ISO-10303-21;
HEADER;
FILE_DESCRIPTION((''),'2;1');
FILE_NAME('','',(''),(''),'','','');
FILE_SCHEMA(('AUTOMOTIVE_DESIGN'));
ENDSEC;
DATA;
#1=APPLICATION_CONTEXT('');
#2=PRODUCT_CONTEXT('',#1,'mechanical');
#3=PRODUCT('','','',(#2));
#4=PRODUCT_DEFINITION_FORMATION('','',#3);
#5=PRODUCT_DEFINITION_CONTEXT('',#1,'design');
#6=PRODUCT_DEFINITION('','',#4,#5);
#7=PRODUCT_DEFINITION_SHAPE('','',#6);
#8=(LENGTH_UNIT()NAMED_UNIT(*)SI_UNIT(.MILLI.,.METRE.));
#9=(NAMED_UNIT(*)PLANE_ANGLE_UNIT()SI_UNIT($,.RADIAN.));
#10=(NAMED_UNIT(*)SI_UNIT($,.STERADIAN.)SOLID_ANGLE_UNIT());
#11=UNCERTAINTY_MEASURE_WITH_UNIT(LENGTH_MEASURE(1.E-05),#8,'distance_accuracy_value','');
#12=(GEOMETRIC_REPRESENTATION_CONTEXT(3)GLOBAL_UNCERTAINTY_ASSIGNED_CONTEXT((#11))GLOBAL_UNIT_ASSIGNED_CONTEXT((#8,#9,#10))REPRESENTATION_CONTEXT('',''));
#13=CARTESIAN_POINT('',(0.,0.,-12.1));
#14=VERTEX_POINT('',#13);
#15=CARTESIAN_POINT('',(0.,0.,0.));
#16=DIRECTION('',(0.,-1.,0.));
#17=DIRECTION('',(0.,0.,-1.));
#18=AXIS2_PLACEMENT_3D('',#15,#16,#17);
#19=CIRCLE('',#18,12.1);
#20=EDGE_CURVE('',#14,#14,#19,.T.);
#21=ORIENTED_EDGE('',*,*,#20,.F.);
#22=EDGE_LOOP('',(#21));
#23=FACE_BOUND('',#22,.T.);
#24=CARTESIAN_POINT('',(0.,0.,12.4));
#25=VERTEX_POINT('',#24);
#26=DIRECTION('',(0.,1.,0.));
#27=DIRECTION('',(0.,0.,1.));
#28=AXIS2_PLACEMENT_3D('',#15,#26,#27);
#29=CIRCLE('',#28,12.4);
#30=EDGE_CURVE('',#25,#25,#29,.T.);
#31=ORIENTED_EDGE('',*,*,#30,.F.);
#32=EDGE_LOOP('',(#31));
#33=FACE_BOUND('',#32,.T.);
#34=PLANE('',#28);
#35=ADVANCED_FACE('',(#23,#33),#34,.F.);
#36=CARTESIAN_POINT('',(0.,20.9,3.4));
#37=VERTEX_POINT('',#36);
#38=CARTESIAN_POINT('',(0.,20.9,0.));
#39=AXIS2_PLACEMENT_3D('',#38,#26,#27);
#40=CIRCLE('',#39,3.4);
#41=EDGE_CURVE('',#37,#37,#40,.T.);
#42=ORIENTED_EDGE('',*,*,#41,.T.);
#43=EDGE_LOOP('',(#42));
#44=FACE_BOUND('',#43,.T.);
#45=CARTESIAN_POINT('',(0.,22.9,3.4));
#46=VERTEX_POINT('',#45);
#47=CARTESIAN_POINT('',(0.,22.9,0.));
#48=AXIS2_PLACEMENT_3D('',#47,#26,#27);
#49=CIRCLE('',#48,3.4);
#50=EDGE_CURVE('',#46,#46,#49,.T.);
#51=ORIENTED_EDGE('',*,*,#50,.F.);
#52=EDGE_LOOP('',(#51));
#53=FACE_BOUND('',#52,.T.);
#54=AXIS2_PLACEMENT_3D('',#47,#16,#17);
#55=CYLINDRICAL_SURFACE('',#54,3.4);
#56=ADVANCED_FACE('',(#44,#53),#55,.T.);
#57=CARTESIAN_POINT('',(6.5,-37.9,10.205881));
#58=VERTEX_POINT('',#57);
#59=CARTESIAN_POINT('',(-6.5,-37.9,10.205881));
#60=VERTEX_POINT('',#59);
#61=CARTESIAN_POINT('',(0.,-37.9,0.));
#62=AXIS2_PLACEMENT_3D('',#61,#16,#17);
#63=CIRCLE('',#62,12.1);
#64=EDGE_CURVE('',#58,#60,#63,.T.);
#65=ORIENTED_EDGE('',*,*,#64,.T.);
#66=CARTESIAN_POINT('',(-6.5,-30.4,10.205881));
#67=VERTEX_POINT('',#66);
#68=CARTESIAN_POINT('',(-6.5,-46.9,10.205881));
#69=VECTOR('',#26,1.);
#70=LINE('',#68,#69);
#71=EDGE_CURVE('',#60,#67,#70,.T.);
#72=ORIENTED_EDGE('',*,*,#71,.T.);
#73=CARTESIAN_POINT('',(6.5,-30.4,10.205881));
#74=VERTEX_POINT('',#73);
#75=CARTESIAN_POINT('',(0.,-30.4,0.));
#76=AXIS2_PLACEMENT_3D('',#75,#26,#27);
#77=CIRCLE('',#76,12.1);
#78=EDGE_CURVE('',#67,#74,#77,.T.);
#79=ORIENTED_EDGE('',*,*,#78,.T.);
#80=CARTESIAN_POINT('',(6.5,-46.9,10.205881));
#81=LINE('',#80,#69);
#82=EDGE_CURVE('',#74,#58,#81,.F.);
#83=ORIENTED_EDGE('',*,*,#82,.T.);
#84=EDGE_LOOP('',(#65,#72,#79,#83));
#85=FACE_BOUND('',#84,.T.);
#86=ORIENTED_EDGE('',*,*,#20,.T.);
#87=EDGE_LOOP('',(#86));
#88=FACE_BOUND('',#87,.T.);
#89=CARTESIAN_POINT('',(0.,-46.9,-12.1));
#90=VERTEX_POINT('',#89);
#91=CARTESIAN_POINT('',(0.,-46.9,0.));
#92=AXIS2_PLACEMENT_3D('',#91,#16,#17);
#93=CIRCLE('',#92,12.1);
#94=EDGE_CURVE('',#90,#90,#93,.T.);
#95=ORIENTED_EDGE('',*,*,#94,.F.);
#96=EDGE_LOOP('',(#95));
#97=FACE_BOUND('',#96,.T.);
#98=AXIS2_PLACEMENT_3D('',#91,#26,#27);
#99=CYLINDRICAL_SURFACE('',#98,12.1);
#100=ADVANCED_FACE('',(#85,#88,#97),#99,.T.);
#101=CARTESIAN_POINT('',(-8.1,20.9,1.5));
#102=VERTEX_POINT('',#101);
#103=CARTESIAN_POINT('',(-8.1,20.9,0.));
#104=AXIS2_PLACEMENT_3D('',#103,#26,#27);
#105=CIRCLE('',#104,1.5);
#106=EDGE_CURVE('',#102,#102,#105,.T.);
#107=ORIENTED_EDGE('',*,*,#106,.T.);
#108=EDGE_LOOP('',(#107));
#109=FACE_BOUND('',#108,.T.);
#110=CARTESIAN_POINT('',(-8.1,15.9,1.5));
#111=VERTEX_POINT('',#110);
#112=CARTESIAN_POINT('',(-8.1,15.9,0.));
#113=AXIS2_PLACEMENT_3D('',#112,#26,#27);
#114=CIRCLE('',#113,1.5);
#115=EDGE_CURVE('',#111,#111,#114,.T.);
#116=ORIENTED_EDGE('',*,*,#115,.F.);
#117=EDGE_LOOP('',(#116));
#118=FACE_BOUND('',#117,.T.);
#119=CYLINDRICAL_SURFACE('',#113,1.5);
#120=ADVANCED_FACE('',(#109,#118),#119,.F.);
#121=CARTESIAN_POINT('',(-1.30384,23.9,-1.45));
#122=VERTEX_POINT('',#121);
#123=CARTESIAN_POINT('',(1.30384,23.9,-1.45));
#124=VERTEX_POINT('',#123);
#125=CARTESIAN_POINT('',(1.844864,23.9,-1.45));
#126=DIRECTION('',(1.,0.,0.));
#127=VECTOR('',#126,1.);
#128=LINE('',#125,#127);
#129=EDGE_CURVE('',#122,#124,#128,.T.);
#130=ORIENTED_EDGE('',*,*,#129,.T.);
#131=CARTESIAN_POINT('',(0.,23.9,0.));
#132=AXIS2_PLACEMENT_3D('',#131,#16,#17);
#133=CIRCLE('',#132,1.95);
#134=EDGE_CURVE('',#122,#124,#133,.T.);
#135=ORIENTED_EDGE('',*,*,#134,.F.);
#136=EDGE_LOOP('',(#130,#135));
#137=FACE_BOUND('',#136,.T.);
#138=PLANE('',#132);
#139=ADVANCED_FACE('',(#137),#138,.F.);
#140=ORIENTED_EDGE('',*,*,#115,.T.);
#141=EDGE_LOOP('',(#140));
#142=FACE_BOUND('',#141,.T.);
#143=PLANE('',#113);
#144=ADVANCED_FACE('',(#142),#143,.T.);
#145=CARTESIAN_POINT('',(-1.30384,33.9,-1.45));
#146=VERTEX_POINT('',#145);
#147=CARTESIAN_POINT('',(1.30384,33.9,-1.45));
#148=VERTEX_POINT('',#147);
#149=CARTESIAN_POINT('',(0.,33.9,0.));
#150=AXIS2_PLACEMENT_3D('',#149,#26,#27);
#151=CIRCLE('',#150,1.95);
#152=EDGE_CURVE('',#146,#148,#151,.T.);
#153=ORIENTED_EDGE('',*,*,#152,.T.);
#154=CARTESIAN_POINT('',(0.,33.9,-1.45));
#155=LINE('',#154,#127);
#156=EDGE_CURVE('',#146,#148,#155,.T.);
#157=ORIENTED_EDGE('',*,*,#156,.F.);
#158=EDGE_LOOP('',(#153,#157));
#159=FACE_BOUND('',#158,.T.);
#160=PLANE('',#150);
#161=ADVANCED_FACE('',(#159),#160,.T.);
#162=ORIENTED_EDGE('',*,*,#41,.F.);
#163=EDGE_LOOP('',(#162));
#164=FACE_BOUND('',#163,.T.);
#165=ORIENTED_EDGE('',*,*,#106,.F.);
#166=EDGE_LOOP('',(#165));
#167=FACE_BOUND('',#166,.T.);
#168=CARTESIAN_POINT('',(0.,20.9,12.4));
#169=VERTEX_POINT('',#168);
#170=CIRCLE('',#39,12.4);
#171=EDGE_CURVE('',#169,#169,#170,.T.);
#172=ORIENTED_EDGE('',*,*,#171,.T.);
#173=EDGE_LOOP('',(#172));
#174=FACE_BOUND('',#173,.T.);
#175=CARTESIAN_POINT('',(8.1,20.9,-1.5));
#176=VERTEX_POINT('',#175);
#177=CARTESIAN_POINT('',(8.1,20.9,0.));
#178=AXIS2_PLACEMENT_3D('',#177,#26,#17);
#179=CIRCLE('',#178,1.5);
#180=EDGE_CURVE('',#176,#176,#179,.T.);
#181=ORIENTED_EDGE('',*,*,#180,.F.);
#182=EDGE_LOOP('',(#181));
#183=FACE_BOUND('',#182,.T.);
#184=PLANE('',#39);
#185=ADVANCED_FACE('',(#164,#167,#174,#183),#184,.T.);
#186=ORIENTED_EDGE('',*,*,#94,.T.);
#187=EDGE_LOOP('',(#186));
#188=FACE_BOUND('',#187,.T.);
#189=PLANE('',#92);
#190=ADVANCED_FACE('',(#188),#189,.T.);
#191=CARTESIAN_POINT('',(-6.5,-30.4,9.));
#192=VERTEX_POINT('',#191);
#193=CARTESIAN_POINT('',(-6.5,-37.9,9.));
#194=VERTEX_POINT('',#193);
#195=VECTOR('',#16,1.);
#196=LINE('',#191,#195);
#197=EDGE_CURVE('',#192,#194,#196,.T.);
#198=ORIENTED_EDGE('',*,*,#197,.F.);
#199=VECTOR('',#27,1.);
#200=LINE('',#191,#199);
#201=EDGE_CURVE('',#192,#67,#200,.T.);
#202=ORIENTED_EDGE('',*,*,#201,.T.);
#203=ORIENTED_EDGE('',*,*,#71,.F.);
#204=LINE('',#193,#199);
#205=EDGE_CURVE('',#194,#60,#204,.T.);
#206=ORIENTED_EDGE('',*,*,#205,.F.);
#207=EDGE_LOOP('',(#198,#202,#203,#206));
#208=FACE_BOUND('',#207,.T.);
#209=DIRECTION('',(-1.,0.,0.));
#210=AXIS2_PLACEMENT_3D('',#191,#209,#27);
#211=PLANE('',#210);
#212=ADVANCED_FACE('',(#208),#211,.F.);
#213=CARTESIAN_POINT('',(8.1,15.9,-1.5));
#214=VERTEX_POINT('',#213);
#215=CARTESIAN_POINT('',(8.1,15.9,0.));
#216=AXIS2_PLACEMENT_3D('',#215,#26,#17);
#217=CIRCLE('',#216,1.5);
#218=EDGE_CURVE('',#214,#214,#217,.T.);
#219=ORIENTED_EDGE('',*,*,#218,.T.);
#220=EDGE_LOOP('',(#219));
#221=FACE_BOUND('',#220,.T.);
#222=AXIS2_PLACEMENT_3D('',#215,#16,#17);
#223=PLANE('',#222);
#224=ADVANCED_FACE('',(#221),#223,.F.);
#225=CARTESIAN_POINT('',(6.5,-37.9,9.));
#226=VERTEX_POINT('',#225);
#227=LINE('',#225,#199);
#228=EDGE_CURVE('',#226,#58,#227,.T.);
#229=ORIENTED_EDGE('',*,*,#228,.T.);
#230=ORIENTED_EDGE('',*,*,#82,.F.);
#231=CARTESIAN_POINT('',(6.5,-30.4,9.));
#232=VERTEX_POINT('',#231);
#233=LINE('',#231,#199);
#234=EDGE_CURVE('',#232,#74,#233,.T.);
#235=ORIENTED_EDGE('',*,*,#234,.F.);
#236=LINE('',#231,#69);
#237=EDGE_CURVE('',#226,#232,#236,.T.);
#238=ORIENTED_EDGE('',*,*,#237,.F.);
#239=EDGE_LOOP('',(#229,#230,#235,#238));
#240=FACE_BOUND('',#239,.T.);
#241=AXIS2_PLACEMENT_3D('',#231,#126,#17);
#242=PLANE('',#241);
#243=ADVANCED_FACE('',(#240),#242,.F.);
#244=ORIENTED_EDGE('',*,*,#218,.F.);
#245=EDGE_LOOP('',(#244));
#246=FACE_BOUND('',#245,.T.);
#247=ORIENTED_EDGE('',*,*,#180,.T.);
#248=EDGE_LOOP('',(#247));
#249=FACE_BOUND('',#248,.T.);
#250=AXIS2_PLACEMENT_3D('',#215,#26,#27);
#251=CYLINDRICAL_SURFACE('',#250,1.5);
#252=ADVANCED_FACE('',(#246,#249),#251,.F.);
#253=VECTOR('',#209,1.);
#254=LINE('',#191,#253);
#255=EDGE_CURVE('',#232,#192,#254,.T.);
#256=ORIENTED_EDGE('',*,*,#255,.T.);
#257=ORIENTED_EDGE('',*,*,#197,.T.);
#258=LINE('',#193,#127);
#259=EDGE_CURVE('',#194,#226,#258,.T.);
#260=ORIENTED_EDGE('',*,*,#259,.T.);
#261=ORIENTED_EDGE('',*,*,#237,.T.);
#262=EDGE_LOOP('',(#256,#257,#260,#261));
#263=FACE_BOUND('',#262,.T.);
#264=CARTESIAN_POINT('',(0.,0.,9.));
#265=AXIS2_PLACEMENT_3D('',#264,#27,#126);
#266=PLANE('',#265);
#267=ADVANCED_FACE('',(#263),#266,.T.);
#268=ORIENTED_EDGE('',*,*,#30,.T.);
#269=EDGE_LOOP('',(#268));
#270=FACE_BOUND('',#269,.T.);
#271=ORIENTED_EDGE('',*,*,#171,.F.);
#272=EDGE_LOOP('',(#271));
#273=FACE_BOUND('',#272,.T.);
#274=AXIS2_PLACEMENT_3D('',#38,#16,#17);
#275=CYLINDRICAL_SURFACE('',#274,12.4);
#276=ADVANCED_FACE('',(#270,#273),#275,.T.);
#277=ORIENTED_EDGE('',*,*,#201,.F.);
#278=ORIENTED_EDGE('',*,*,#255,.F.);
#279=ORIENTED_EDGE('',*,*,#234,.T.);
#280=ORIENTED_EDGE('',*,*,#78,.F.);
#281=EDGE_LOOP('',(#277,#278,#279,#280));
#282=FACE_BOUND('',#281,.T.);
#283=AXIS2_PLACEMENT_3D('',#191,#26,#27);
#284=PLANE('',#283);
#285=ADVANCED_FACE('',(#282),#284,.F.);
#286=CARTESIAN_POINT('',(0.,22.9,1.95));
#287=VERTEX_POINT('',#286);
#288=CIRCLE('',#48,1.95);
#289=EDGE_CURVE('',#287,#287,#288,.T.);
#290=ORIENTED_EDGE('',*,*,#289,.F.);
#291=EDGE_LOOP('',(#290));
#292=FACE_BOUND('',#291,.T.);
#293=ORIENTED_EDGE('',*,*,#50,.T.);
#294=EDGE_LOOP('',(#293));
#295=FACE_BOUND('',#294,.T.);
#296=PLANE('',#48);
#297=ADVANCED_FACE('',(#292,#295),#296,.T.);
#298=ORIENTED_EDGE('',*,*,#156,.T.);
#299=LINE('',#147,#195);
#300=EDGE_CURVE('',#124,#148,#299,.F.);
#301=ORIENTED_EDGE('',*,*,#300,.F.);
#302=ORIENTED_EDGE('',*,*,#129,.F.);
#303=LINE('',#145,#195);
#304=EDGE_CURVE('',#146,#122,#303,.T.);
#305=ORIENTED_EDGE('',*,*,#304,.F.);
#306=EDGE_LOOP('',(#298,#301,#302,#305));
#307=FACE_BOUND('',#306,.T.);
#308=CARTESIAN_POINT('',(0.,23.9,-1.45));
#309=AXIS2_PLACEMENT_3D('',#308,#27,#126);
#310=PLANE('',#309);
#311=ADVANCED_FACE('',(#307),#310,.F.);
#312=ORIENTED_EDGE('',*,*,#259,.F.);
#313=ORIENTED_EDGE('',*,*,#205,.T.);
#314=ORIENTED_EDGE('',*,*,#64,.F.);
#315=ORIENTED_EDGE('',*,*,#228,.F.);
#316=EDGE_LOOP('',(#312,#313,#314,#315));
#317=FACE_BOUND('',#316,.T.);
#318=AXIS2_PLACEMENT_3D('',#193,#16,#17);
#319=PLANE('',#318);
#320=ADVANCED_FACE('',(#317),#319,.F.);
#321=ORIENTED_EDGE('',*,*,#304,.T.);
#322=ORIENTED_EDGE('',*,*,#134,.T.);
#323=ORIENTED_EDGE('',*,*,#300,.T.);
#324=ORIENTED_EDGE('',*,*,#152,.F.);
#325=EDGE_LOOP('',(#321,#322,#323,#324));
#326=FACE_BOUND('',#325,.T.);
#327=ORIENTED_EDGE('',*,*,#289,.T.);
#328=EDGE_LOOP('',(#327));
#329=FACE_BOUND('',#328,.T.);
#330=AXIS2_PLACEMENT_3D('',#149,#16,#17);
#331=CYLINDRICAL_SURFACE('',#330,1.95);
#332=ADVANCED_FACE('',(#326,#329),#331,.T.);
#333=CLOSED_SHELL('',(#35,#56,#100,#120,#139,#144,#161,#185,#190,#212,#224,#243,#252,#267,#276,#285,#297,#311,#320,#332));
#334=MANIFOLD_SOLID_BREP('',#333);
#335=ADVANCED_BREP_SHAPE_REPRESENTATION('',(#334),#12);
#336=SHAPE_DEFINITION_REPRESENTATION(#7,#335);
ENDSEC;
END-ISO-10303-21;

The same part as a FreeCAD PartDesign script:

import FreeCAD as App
import Part
import Sketcher

V = App.Vector


def add_polygon(sketch, points):
    """Adds a closed chain of lines whose ends are joined by coincident constraints."""
    first, n = sketch.GeometryCount, len(points)
    for a, b in zip(points, points[1:] + points[:1]):
        sketch.addGeometry(Part.LineSegment(App.Vector(*a, 0), App.Vector(*b, 0)), False)
    for i in range(n):
        sketch.addConstraint(Sketcher.Constraint("Coincident", first + i, 2, first + (i + 1) % n, 1))

doc = App.newDocument("Part")
params = doc.addObject("Spreadsheet::Sheet", "Params")
for row, (alias, value) in enumerate([
    ("sketch1_diameter", "24.8 mm"),
    ("pad1_length", "20.9 mm"),
    ("sketch2_diameter", "6.8 mm"),
    ("pad2_length", "2 mm"),
    ("sketch3_diameter", "3.9 mm"),
    ("pad3_length", "11 mm"),
    ("pocket1_length", "10 mm"),
    ("sketch5_diameter", "24.2 mm"),
    ("pad4_length", "46.9 mm"),
    ("sketch6_diameter", "3 mm"),
    ("pocket2_length", "5 mm"),
    ("sketch7_width", "13 mm"),
    ("sketch7_height", "7.5 mm"),
    ("pocket3_length", "4 mm"),
], start=1):
    params.set(f"A{row}", alias)
    params.set(f"B{row}", "=" + value)
    params.setAlias(f"B{row}", alias)

body = doc.addObject("PartDesign::Body", "Body")

# Sketch on XZ plane
sketch1 = body.newObject("Sketcher::SketchObject", "Sketch")
sketch1.AttachmentSupport = (doc.getObject("XZ_Plane"), [""])
sketch1.MapMode = "FlatFace"
sketch1.addGeometry(Part.Circle(V(0, 0, 0), V(0, 0, 1), 12), False)
sketch1.addConstraint(Sketcher.Constraint("Coincident", 0, 3, -1, 1))
sketch1.addConstraint(Sketcher.Constraint("Diameter", 0, 24.8))
sketch1.setExpression("Constraints[1]", "Params.sketch1_diameter")
pad1 = body.newObject("PartDesign::Pad", "Pad")
pad1.Profile = sketch1
pad1.setExpression("Length", "Params.pad1_length")
pad1.Reversed = True

# Sketch on XZ plane
sketch2 = body.newObject("Sketcher::SketchObject", "Sketch001")
sketch2.AttachmentSupport = (doc.getObject("XZ_Plane"), [""])
sketch2.MapMode = "FlatFace"
sketch2.AttachmentOffset = App.Placement(V(0, 0, -20.9), App.Rotation())
sketch2.addGeometry(Part.Circle(V(0, 0, 0), V(0, 0, 1), 3.4), False)
sketch2.addConstraint(Sketcher.Constraint("Coincident", 0, 3, -1, 1))
sketch2.addConstraint(Sketcher.Constraint("Diameter", 0, 6.8))
sketch2.setExpression("Constraints[1]", "Params.sketch2_diameter")
pad2 = body.newObject("PartDesign::Pad", "Pad001")
pad2.Profile = sketch2
pad2.setExpression("Length", "Params.pad2_length")
pad2.Reversed = True

# Sketch on XZ plane
sketch3 = body.newObject("Sketcher::SketchObject", "Sketch002")
sketch3.AttachmentSupport = (doc.getObject("XZ_Plane"), [""])
sketch3.MapMode = "FlatFace"
sketch3.AttachmentOffset = App.Placement(V(0, 0, -22.9), App.Rotation())
sketch3.addGeometry(Part.Circle(V(0, 0, 0), V(0, 0, 1), 1.9), False)
sketch3.addConstraint(Sketcher.Constraint("Coincident", 0, 3, -1, 1))
sketch3.addConstraint(Sketcher.Constraint("Diameter", 0, 3.9))
sketch3.setExpression("Constraints[1]", "Params.sketch3_diameter")
pad3 = body.newObject("PartDesign::Pad", "Pad002")
pad3.Profile = sketch3
pad3.setExpression("Length", "Params.pad3_length")
pad3.Reversed = True

# Sketch on XZ plane
sketch4 = body.newObject("Sketcher::SketchObject", "Sketch003")
sketch4.AttachmentSupport = (doc.getObject("XZ_Plane"), [""])
sketch4.MapMode = "FlatFace"
sketch4.AttachmentOffset = App.Placement(V(0, 0, -33.9), App.Rotation())
add_polygon(sketch4, [(-1.8, -1.4), (1.8, -1.4), (1.8, -3.3), (-1.8, -3.3)])  # lines 0-3
sketch4.addConstraint(Sketcher.Constraint("Horizontal", 0))
sketch4.addConstraint(Sketcher.Constraint("Vertical", 1))
sketch4.addConstraint(Sketcher.Constraint("Horizontal", 2))
sketch4.addConstraint(Sketcher.Constraint("Vertical", 3))
sketch4.addConstraint(Sketcher.Constraint("DistanceY", 0, 2, -1, 1, 1.45))
sketch4.addConstraint(Sketcher.Constraint("DistanceX", 0, 1, 0, 2, 3.685367))
sketch4.addConstraint(Sketcher.Constraint("DistanceY", 1, 2, 1, 1, 1.879278))
sketch4.addConstraint(Sketcher.Constraint("DistanceX", -1, 1, 0, 2, 1.844864))
pocket1 = body.newObject("PartDesign::Pocket", "Pocket")
pocket1.Profile = sketch4
pocket1.setExpression("Length", "Params.pocket1_length")
pocket1.Reversed = True

# Sketch on XZ plane
sketch5 = body.newObject("Sketcher::SketchObject", "Sketch004")
sketch5.AttachmentSupport = (doc.getObject("XZ_Plane"), [""])
sketch5.MapMode = "FlatFace"
sketch5.addGeometry(Part.Circle(V(0, 0, 0), V(0, 0, 1), 12), False)
sketch5.addConstraint(Sketcher.Constraint("Coincident", 0, 3, -1, 1))
sketch5.addConstraint(Sketcher.Constraint("Diameter", 0, 24.2))
sketch5.setExpression("Constraints[1]", "Params.sketch5_diameter")
pad4 = body.newObject("PartDesign::Pad", "Pad003")
pad4.Profile = sketch5
pad4.setExpression("Length", "Params.pad4_length")

# Sketch on XZ plane
sketch6 = body.newObject("Sketcher::SketchObject", "Sketch005")
sketch6.AttachmentSupport = (doc.getObject("XZ_Plane"), [""])
sketch6.MapMode = "FlatFace"
sketch6.AttachmentOffset = App.Placement(V(0, 0, -20.9), App.Rotation())
sketch6.addGeometry(Part.Circle(V(-8.1, 0, 0), V(0, 0, 1), 1.5), False)
sketch6.addGeometry(Part.Circle(V(8.1, 0, 0), V(0, 0, 1), 1.5), False)
sketch6.addConstraint(Sketcher.Constraint("Equal", 0, 1))
sketch6.addConstraint(Sketcher.Constraint("Symmetric", 0, 3, 1, 3, -1, 1))
sketch6.addConstraint(Sketcher.Constraint("PointOnObject", 0, 3, -1))
sketch6.addConstraint(Sketcher.Constraint("Diameter", 0, 3.0))
sketch6.addConstraint(Sketcher.Constraint("DistanceX", 0, 3, -1, 1, 8.1))
sketch6.setExpression("Constraints[3]", "Params.sketch6_diameter")
pocket2 = body.newObject("PartDesign::Pocket", "Pocket001")
pocket2.Profile = sketch6
pocket2.setExpression("Length", "Params.pocket2_length")
pocket2.Reversed = True

# Sketch on XY plane
sketch7 = body.newObject("Sketcher::SketchObject", "Sketch006")
sketch7.AttachmentSupport = (doc.getObject("XY_Plane"), [""])
sketch7.MapMode = "FlatFace"
sketch7.AttachmentOffset = App.Placement(V(0, 0, 13), App.Rotation())
add_polygon(sketch7, [(-6, -30), (-6, -38), (6, -38), (6, -30)])  # lines 0-3
sketch7.addConstraint(Sketcher.Constraint("Vertical", 0))
sketch7.addConstraint(Sketcher.Constraint("Horizontal", 1))
sketch7.addConstraint(Sketcher.Constraint("Vertical", 2))
sketch7.addConstraint(Sketcher.Constraint("Horizontal", 3))
sketch7.addConstraint(Sketcher.Constraint("DistanceX", 1, 1, 1, 2, 13.0))
sketch7.addConstraint(Sketcher.Constraint("DistanceY", 0, 2, 0, 1, 7.5))
sketch7.addConstraint(Sketcher.Constraint("DistanceX", 0, 2, -1, 1, 6.5))
sketch7.addConstraint(Sketcher.Constraint("DistanceY", 0, 2, -1, 1, 37.9))
sketch7.setExpression("Constraints[8]", "Params.sketch7_width")
sketch7.setExpression("Constraints[9]", "Params.sketch7_height")
pocket3 = body.newObject("PartDesign::Pocket", "Pocket002")
pocket3.Profile = sketch7
pocket3.setExpression("Length", "Params.pocket3_length")

doc.recompute()
